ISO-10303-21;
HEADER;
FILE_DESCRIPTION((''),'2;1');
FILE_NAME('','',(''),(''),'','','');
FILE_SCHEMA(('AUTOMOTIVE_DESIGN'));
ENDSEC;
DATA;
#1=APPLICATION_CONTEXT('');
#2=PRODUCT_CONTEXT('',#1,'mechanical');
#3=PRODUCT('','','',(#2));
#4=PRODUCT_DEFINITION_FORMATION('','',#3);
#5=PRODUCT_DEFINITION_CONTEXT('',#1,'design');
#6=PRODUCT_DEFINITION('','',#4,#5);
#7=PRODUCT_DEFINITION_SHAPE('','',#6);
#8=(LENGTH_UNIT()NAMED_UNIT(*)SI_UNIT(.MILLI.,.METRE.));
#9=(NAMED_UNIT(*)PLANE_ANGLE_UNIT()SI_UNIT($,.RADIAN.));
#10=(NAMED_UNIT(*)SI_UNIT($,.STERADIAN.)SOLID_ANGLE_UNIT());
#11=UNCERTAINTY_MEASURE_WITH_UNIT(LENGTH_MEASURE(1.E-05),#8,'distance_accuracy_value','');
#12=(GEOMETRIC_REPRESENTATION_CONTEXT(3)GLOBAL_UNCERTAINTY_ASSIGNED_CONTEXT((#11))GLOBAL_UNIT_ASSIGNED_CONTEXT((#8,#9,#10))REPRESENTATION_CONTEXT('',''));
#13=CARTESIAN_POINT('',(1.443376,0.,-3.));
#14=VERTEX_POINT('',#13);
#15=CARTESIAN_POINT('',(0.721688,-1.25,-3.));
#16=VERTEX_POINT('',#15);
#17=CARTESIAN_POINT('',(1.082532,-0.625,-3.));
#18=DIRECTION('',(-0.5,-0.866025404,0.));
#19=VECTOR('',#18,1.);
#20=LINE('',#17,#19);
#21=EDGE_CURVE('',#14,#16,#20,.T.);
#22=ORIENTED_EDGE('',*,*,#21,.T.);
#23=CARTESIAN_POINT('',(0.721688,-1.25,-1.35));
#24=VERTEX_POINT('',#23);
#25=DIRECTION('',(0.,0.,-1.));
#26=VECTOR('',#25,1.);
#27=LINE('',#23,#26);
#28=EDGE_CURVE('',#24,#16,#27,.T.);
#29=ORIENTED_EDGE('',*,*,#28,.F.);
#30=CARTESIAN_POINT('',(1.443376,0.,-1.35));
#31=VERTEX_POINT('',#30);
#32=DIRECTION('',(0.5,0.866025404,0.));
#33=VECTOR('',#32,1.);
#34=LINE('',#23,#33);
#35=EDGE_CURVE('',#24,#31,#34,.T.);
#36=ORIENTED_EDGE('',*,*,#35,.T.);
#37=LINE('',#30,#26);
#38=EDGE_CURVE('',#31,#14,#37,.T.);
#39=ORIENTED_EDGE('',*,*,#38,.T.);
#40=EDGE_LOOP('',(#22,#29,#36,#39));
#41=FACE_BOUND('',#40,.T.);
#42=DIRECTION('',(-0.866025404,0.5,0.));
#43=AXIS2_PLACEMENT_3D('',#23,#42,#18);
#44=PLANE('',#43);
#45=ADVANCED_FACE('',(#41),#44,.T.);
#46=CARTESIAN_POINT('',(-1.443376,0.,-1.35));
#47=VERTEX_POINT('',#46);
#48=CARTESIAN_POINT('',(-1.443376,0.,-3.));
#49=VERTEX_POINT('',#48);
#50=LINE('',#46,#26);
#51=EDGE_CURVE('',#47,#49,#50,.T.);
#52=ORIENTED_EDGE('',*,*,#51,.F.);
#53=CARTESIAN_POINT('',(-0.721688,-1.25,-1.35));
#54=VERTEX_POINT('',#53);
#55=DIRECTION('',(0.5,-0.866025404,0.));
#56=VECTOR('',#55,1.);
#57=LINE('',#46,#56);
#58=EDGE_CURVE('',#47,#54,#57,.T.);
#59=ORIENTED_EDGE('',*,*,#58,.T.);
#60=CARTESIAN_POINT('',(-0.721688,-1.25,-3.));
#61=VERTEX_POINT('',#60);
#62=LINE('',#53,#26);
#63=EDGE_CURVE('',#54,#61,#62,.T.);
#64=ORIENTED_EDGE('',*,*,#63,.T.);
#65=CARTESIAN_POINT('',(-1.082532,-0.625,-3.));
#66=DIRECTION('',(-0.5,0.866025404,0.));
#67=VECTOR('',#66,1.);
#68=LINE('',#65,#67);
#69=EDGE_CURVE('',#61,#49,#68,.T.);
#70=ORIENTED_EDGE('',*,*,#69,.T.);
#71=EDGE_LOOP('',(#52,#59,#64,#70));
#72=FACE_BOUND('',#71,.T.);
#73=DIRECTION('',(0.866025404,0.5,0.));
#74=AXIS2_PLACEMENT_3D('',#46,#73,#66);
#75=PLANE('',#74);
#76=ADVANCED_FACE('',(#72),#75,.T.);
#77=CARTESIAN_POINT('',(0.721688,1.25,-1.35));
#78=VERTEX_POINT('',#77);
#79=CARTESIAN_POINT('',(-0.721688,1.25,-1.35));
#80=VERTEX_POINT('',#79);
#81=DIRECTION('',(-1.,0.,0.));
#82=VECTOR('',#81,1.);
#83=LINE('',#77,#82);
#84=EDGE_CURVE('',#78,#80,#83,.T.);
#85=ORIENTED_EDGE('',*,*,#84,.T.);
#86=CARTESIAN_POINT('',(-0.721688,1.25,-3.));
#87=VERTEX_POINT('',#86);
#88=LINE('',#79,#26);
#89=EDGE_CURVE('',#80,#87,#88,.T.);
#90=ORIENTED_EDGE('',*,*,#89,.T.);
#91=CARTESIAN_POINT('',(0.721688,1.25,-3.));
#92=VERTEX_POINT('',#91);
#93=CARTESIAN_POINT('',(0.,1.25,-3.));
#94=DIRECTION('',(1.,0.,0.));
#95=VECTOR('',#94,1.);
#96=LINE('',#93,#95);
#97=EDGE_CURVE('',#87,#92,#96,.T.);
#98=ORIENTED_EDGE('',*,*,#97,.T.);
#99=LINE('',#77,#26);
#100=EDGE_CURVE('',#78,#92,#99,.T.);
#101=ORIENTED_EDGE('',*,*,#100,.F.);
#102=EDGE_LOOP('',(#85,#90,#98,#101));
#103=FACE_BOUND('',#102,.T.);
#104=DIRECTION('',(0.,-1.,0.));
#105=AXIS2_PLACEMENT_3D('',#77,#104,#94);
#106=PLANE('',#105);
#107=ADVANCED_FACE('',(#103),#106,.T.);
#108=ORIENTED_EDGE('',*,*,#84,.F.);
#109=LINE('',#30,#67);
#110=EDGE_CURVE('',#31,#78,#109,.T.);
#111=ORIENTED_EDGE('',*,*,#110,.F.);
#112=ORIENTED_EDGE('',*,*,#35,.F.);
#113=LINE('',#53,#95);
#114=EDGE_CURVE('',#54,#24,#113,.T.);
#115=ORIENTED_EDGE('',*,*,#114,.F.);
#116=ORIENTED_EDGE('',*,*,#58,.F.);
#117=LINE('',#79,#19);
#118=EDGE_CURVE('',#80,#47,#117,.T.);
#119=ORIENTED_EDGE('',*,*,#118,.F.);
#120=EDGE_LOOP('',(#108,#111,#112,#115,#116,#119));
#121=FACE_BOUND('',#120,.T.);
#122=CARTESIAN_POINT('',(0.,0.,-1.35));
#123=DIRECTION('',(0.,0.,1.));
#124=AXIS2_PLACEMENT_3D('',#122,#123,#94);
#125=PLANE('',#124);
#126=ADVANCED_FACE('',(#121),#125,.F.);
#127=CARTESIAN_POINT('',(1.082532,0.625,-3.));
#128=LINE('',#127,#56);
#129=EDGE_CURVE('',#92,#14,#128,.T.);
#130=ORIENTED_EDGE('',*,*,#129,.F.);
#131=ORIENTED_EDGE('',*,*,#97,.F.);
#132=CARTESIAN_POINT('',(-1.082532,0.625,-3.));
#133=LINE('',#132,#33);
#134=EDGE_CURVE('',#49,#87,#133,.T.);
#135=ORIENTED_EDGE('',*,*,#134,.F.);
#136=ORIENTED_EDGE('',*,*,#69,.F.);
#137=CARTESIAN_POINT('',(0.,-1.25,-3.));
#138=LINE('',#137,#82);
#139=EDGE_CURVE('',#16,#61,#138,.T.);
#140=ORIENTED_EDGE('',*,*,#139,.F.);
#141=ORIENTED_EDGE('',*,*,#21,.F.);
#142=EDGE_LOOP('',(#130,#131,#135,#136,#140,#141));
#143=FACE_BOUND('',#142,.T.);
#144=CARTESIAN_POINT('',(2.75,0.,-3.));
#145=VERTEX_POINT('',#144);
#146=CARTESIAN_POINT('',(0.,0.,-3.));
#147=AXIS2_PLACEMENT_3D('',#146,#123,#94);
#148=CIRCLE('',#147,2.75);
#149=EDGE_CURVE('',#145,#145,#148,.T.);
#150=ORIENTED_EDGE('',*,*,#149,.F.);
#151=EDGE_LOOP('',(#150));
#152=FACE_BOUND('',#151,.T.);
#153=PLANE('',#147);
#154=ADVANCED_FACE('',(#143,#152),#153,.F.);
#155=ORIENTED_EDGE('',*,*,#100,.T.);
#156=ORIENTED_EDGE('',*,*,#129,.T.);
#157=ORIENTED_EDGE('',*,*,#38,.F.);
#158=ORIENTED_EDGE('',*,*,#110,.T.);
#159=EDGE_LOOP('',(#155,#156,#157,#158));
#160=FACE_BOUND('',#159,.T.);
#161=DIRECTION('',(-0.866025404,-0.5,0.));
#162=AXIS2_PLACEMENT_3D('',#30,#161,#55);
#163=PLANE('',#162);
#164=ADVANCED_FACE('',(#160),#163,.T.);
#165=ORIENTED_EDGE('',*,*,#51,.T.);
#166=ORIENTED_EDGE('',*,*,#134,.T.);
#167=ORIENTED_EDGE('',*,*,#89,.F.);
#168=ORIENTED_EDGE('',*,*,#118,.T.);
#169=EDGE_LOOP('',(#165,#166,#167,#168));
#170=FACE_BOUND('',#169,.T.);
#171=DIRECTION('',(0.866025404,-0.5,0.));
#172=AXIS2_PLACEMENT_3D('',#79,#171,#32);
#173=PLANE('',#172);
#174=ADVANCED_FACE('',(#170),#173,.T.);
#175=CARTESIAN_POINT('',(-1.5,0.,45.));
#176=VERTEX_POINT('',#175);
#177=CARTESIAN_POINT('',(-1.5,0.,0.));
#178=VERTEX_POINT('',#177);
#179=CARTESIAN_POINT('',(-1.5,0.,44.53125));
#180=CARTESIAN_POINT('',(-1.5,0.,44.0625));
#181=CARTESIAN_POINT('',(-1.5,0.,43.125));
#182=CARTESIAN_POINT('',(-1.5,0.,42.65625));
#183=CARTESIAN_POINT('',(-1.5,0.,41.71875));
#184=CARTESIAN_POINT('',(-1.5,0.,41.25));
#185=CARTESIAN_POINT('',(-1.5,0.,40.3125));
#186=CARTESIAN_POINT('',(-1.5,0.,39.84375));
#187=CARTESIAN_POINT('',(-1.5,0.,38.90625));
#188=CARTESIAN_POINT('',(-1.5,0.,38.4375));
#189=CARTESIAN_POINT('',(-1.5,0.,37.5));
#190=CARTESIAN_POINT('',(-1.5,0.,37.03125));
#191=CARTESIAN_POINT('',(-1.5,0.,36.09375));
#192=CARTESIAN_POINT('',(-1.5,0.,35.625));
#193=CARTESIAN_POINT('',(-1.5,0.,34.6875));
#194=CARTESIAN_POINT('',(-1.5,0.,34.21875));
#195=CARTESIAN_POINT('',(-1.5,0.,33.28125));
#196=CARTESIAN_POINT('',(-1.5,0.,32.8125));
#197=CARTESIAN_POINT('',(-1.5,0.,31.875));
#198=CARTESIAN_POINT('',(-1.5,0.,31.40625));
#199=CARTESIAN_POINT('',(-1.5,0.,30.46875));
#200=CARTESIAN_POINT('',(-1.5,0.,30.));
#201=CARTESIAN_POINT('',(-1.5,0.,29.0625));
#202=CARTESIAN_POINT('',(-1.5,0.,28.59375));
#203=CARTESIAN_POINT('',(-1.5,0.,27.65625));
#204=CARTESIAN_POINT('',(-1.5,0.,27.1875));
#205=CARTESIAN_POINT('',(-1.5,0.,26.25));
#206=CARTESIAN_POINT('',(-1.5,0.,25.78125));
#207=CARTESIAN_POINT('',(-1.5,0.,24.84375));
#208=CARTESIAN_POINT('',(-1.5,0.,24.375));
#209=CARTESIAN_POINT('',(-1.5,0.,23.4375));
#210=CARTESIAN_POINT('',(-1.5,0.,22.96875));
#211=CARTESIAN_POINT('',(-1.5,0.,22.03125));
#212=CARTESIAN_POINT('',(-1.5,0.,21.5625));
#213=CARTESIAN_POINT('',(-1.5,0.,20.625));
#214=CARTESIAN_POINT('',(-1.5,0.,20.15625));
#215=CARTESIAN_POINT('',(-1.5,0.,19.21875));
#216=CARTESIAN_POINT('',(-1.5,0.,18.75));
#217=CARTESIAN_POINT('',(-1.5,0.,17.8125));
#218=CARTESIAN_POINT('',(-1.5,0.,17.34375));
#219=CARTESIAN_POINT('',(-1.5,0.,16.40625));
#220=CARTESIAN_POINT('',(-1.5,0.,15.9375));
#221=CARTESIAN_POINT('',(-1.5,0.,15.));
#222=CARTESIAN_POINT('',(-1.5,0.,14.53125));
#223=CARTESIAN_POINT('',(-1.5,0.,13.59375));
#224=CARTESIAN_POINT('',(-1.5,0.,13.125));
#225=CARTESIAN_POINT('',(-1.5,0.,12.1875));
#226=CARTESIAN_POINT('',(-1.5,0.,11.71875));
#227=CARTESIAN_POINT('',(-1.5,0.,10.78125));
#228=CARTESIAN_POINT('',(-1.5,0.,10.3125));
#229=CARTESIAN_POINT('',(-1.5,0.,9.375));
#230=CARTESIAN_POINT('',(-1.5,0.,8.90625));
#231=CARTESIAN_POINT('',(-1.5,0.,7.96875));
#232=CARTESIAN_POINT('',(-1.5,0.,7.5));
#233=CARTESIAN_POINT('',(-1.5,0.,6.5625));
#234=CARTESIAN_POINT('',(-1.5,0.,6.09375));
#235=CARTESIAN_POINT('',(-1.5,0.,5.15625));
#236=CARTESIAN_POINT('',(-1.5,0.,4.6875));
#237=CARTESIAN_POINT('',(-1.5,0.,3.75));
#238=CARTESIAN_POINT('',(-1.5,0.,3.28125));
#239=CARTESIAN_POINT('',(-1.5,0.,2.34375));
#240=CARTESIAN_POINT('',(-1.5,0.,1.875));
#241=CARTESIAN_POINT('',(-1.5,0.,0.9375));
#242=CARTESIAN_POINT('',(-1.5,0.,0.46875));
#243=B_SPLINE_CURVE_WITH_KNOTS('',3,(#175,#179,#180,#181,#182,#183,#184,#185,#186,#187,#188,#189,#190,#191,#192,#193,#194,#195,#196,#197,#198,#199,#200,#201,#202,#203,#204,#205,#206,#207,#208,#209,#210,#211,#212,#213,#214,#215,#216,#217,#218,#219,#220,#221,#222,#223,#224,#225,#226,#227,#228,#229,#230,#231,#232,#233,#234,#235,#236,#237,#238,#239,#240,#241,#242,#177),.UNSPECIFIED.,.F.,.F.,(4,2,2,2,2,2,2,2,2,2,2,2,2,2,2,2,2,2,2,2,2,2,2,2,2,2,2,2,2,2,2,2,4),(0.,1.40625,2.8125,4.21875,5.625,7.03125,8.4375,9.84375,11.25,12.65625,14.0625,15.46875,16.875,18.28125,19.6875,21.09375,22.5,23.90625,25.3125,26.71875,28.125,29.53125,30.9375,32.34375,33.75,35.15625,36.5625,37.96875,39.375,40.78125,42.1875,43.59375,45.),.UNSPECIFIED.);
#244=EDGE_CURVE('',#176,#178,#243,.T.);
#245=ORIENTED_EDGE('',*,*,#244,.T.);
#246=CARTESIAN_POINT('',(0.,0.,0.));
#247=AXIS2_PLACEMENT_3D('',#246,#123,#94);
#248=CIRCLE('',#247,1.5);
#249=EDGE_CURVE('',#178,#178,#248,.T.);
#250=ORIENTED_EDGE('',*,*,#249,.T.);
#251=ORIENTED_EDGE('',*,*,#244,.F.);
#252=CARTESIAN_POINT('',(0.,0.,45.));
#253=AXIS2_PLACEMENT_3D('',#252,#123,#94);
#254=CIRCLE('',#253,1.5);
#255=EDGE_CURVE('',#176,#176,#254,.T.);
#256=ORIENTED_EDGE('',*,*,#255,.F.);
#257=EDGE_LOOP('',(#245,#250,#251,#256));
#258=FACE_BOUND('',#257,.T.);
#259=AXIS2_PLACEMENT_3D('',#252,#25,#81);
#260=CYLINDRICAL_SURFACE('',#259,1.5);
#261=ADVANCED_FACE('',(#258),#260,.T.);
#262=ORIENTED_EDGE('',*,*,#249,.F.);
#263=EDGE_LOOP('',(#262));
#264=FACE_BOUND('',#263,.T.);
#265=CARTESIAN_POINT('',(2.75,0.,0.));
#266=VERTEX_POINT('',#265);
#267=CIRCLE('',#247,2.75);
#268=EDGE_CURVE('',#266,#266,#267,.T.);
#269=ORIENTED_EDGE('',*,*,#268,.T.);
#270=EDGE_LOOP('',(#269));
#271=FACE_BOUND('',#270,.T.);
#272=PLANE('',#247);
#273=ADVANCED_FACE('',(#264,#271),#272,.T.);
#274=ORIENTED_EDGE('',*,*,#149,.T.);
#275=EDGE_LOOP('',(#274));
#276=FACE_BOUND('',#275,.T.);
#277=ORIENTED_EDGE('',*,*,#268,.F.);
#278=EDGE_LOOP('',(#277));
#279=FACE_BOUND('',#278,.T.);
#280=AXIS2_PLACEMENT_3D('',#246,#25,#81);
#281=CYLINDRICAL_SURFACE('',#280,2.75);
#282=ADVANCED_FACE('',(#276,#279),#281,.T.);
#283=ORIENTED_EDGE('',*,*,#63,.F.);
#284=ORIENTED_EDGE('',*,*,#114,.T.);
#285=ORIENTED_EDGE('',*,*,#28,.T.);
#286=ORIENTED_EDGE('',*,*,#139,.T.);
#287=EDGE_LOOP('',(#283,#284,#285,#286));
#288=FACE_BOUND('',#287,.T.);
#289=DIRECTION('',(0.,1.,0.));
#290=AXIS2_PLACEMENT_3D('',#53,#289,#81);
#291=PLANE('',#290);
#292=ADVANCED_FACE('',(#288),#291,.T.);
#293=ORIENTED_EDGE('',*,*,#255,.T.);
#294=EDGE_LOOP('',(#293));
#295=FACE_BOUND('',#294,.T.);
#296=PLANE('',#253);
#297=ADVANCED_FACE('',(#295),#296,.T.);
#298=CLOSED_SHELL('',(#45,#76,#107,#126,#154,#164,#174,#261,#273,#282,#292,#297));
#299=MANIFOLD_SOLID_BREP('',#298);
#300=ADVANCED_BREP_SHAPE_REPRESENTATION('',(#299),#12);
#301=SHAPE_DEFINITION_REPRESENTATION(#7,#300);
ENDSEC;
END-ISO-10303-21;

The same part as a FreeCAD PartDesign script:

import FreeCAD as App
import Part
import Sketcher
from FreeCAD import Vector
Q = App.Units.Quantity

doc = App.newDocument("Part")
body = doc.addObject("PartDesign::Body", "Body")

sketch1 = body.newObject("Sketcher::SketchObject", "Sketch")
sketch1.AttachmentSupport = (doc.getObject("XY_Plane"), [""])
sketch1.MapMode = "FlatFace"
sketch1.AttachmentOffset = App.Placement(Vector(0, 0, -3), App.Rotation())
sketch1.addGeometry(Part.Circle(Vector(0, 0, 0), Vector(0, 0, 1), 2.8), False)
sketch1.addConstraint(Sketcher.Constraint("Coincident", 0, 3, -1, 1))
sketch1.addConstraint(Sketcher.Constraint("Diameter", 0, 5.5))
pad1 = body.newObject("PartDesign::Pad", "Pad")
pad1.Profile = sketch1
pad1.Length = 3

sketch2 = body.newObject("Sketcher::SketchObject", "Sketch001")
sketch2.AttachmentSupport = (doc.getObject("XY_Plane"), [""])
sketch2.MapMode = "FlatFace"
sketch2.addGeometry(Part.Circle(Vector(0, 0, 0), Vector(0, 0, 1), 1.5), False)
sketch2.addConstraint(Sketcher.Constraint("Coincident", 0, 3, -1, 1))
sketch2.addConstraint(Sketcher.Constraint("Diameter", 0, 3.0))
pad2 = body.newObject("PartDesign::Pad", "Pad001")
pad2.Profile = sketch2
pad2.Length = 45

sketch3 = body.newObject("Sketcher::SketchObject", "Sketch002")
sketch3.AttachmentSupport = (doc.getObject("XY_Plane"), [""])
sketch3.MapMode = "FlatFace"
sketch3.AttachmentOffset = App.Placement(Vector(0, 0, -3.1), App.Rotation())
sketch3.addGeometry(Part.LineSegment(Vector(1.4, 0, 0), Vector(0.7, 1.2, 0)), False)
sketch3.addGeometry(Part.LineSegment(Vector(0.7, 1.2, 0), Vector(-0.7, 1.2, 0)), False)
sketch3.addGeometry(Part.LineSegment(Vector(-0.7, 1.2, 0), Vector(-1.4, 0, 0)), False)
sketch3.addGeometry(Part.LineSegment(Vector(-1.4, 0, 0), Vector(-0.7, -1.2, 0)), False)
sketch3.addGeometry(Part.LineSegment(Vector(-0.7, -1.2, 0), Vector(0.7, -1.2, 0)), False)
sketch3.addGeometry(Part.LineSegment(Vector(0.7, -1.2, 0), Vector(1.4, 0, 0)), False)
sketch3.addConstraint(Sketcher.Constraint("Coincident", 0, 2, 1, 1))
sketch3.addConstraint(Sketcher.Constraint("Coincident", 1, 2, 2, 1))
sketch3.addConstraint(Sketcher.Constraint("Coincident", 2, 2, 3, 1))
sketch3.addConstraint(Sketcher.Constraint("Coincident", 3, 2, 4, 1))
sketch3.addConstraint(Sketcher.Constraint("Coincident", 4, 2, 5, 1))
sketch3.addConstraint(Sketcher.Constraint("Coincident", 5, 2, 0, 1))
sketch3.addConstraint(Sketcher.Constraint("Horizontal", 1))
sketch3.addConstraint(Sketcher.Constraint("Horizontal", 4))
sketch3.addConstraint(Sketcher.Constraint("Symmetric", 0, 2, 3, 2, -1, 1))
sketch3.addConstraint(Sketcher.Constraint("Symmetric", 2, 2, 5, 2, -1, 1))
sketch3.addConstraint(Sketcher.Constraint("PointOnObject", 2, 2, -1))
sketch3.addConstraint(Sketcher.Constraint("Parallel", 2, 5))
sketch3.addConstraint(Sketcher.Constraint("Vertical", 1, 2, 3, 2))
sketch3.addConstraint(Sketcher.Constraint("Angle", 0, Q("120 deg")))
sketch3.addConstraint(Sketcher.Constraint("DistanceY", 3, 2, 1, 2, 2.5))
sketch3.addConstraint(Sketcher.Constraint("DistanceX", 1, 2, 1, 1, 1.443376))
pocket1 = body.newObject("PartDesign::Pocket", "Pocket")
pocket1.Profile = sketch3
pocket1.Length = 1.75
pocket1.Reversed = True

doc.recompute()
